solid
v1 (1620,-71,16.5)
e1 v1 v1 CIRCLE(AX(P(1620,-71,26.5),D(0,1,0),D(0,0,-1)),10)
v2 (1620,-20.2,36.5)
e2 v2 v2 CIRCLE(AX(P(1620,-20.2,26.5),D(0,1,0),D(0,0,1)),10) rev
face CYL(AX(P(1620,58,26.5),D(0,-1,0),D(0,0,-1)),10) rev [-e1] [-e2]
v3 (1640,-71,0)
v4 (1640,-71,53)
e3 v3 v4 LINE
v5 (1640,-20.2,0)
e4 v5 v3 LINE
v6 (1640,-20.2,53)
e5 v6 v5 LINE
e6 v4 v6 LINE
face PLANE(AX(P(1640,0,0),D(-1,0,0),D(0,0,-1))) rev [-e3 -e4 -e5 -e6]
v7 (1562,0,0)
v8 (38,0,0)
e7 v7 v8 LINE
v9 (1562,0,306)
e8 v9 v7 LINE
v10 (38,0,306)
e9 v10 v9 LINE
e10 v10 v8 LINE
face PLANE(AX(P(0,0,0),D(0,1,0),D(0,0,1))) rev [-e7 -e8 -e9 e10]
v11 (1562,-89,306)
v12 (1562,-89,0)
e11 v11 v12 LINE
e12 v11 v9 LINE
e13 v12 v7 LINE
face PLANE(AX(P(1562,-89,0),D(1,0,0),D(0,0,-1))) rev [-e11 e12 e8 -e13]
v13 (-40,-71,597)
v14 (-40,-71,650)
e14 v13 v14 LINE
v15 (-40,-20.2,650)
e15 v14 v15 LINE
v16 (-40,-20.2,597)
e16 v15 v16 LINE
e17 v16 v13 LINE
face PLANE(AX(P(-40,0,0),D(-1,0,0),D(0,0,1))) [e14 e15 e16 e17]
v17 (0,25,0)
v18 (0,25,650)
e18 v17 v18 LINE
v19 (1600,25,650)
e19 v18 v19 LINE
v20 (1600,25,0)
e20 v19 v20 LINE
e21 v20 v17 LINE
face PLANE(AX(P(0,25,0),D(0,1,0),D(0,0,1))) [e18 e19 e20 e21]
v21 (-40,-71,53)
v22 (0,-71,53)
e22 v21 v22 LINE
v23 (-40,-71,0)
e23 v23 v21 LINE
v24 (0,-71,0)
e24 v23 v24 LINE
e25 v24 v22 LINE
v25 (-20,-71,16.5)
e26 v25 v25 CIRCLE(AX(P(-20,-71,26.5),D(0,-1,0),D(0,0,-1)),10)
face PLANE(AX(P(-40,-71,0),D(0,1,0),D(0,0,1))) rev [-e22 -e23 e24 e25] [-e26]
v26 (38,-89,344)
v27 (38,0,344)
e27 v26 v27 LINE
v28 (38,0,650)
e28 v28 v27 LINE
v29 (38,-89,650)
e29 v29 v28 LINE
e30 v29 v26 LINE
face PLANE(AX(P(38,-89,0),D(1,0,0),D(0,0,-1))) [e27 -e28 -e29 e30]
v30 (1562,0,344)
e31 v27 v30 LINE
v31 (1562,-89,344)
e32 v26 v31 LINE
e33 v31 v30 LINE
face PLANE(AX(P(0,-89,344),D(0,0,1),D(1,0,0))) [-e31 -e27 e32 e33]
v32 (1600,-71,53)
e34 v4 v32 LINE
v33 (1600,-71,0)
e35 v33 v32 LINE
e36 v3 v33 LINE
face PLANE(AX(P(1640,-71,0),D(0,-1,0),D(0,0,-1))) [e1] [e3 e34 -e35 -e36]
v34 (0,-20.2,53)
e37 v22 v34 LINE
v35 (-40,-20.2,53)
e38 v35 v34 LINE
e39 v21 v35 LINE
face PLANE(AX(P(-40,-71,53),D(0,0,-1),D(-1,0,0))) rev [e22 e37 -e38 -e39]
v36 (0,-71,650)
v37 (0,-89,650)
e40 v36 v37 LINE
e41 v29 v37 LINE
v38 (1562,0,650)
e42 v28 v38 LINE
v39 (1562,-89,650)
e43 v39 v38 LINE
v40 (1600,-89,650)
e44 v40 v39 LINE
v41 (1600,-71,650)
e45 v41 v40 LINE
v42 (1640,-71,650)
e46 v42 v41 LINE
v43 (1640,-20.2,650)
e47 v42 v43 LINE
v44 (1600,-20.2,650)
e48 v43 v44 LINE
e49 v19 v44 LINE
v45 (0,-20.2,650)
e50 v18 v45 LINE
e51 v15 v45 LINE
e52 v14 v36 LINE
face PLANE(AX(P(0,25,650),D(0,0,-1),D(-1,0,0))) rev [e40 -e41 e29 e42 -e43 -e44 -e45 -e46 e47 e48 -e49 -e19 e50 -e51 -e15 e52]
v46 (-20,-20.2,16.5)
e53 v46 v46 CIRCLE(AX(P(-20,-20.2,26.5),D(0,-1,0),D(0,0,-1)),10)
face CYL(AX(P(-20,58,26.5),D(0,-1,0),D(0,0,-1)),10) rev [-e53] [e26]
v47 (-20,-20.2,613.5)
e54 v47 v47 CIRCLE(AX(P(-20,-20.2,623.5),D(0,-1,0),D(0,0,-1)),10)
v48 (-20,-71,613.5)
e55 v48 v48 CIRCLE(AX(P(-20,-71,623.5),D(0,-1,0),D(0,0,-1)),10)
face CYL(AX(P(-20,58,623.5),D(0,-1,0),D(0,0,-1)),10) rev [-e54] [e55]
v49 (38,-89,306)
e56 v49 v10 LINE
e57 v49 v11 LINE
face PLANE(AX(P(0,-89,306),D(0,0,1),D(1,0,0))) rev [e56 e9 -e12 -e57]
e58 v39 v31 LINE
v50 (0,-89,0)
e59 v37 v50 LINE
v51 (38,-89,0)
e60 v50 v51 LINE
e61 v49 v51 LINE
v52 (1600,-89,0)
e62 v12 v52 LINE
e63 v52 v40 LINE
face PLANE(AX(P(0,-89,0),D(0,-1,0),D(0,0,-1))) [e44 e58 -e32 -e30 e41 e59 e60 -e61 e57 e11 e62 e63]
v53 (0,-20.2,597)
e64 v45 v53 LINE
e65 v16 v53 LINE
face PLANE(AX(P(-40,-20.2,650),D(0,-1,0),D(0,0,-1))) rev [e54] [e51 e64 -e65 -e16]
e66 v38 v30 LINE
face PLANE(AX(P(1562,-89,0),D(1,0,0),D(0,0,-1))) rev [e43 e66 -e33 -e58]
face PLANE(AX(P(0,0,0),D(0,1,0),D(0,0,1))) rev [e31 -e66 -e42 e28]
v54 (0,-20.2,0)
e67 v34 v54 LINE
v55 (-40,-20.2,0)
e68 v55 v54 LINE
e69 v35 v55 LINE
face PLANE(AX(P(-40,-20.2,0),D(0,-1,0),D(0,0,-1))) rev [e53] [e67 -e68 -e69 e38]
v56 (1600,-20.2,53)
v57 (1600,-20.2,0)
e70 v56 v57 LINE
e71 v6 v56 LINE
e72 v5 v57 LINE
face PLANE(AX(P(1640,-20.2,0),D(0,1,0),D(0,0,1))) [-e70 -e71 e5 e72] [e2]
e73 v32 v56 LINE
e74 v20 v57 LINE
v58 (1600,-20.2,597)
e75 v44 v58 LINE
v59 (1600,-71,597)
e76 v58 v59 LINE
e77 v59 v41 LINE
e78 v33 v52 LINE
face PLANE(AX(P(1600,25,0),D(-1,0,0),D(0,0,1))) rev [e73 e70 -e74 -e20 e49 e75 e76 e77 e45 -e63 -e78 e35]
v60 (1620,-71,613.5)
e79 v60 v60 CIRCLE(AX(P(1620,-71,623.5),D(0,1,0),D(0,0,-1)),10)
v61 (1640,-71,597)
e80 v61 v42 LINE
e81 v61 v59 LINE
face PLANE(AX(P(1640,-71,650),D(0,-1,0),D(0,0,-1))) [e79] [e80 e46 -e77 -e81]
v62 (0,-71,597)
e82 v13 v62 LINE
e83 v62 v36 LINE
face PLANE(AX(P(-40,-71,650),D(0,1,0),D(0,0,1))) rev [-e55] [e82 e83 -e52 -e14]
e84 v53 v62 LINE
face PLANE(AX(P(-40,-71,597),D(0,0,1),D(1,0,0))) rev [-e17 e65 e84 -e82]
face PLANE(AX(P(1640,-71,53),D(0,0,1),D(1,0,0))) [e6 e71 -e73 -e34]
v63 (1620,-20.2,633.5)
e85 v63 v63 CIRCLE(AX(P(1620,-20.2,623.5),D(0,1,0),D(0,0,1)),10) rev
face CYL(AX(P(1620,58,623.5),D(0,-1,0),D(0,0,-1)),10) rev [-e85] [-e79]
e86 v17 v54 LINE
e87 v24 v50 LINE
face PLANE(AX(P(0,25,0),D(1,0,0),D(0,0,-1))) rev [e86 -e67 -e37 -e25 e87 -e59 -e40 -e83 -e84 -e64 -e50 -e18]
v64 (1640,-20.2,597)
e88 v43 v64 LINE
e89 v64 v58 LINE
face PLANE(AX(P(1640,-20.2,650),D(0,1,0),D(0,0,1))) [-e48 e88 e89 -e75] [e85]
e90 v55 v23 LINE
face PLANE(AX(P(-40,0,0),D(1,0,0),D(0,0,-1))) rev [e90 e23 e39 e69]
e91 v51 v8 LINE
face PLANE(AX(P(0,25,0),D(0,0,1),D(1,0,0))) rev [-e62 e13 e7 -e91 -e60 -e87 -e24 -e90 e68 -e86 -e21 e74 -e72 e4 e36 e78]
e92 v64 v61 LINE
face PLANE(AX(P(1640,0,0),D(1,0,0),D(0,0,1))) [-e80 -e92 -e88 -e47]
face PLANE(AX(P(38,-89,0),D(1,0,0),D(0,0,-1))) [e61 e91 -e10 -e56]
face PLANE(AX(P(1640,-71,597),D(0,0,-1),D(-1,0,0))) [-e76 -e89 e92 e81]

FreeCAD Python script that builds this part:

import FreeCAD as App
import Part
import Sketcher

doc = App.newDocument("Part")
params = doc.addObject("Spreadsheet::Sheet", "Params")
for row, (alias, value) in enumerate([
    ("sketch1_width", "1600 mm"),
    ("sketch1_height", "650 mm"),
    ("pad1_length", "25 mm"),
    ("sketch2_width", "1524 mm"),
    ("sketch2_width2", "38 mm"),
    ("sketch2_height", "306 mm"),
    ("sketch2_height2", "650 mm"),
    ("pad2_length", "89 mm"),
    ("sketch3_height", "53 mm"),
    ("sketch3_width", "50.8 mm"),
    ("pad3_length", "40 mm"),
    ("sketch4_diameter", "20 mm"),
    ("pocket1_length", "129 mm"),
], start=1):
    params.set(f"A{row}", alias)
    params.set(f"B{row}", "=" + value)
    params.setAlias(f"B{row}", alias)

body = doc.addObject("PartDesign::Body", "Body")

# Sketch on XZ plane
sketch1 = doc.addObject("Sketcher::SketchObject", "Sketch")
body.addObject(sketch1)
sketch1.AttachmentSupport = (doc.XZ_Plane, [""])
sketch1.MapMode = "FlatFace"
sketch1.addGeometry([
    Part.LineSegment(App.Vector(0, 0, 0), App.Vector(0, 650, 0)),
    Part.LineSegment(App.Vector(0, 650, 0), App.Vector(1600, 650, 0)),
    Part.LineSegment(App.Vector(1600, 650, 0), App.Vector(1600, 0, 0)),
    Part.LineSegment(App.Vector(1600, 0, 0), App.Vector(0, 0, 0)),
], False)
sketch1.addConstraint([
    Sketcher.Constraint("Coincident", 0, 2, 1, 1),
    Sketcher.Constraint("Coincident", 1, 2, 2, 1),
    Sketcher.Constraint("Coincident", 2, 2, 3, 1),
    Sketcher.Constraint("Coincident", 3, 2, 0, 1),
    Sketcher.Constraint("Vertical", 0),
    Sketcher.Constraint("Horizontal", 1),
    Sketcher.Constraint("Vertical", 2),
    Sketcher.Constraint("Horizontal", 3),
    Sketcher.Constraint("Coincident", 3, 2, -1, 1),
    Sketcher.Constraint("DistanceX", 1, 1, 1, 2, 1600.0),
    Sketcher.Constraint("DistanceY", 0, 1, 0, 2, 650.0),
])
sketch1.setExpression("Constraints[9]", "Params.sketch1_width")
sketch1.setExpression("Constraints[10]", "Params.sketch1_height")
pad1 = doc.addObject("PartDesign::Pad", "Pad")
body.addObject(pad1)
pad1.Profile = sketch1
pad1.setExpression("Length", "Params.pad1_length")
pad1.Reversed = True

# Sketch on XZ plane
sketch2 = doc.addObject("Sketcher::SketchObject", "Sketch001")
body.addObject(sketch2)
sketch2.AttachmentSupport = (doc.XZ_Plane, [""])
sketch2.MapMode = "FlatFace"
sketch2.addGeometry([
    Part.LineSegment(App.Vector(38, 0, 0), App.Vector(38, 306, 0)),  # 0
    Part.LineSegment(App.Vector(38, 306, 0), App.Vector(1562, 306, 0)),  # 1
    Part.LineSegment(App.Vector(1562, 306, 0), App.Vector(1562, 0, 0)),  # 2
    Part.LineSegment(App.Vector(1562, 0, 0), App.Vector(1600, 0, 0)),  # 3
    Part.LineSegment(App.Vector(1600, 0, 0), App.Vector(1600, 650, 0)),  # 4
    Part.LineSegment(App.Vector(1600, 650, 0), App.Vector(1562, 650, 0)),  # 5
    Part.LineSegment(App.Vector(1562, 650, 0), App.Vector(1562, 344, 0)),  # 6
    Part.LineSegment(App.Vector(1562, 344, 0), App.Vector(38, 344, 0)),  # 7
    Part.LineSegment(App.Vector(38, 344, 0), App.Vector(38, 650, 0)),  # 8
    Part.LineSegment(App.Vector(38, 650, 0), App.Vector(0, 650, 0)),  # 9
    Part.LineSegment(App.Vector(0, 650, 0), App.Vector(0, 0, 0)),  # 10
    Part.LineSegment(App.Vector(0, 0, 0), App.Vector(38, 0, 0)),  # 11
], False)
sketch2.addConstraint([
    Sketcher.Constraint("Coincident", 0, 2, 1, 1),
    Sketcher.Constraint("Coincident", 1, 2, 2, 1),
    Sketcher.Constraint("Coincident", 2, 2, 3, 1),
    Sketcher.Constraint("Coincident", 3, 2, 4, 1),
    Sketcher.Constraint("Coincident", 4, 2, 5, 1),
    Sketcher.Constraint("Coincident", 5, 2, 6, 1),
    Sketcher.Constraint("Coincident", 6, 2, 7, 1),
    Sketcher.Constraint("Coincident", 7, 2, 8, 1),
    Sketcher.Constraint("Coincident", 8, 2, 9, 1),
    Sketcher.Constraint("Coincident", 9, 2, 10, 1),
    Sketcher.Constraint("Coincident", 10, 2, 11, 1),
    Sketcher.Constraint("Coincident", 11, 2, 0, 1),
    Sketcher.Constraint("Vertical", 0),
    Sketcher.Constraint("Horizontal", 1),
    Sketcher.Constraint("Vertical", 2),
    Sketcher.Constraint("Horizontal", 3),
    Sketcher.Constraint("Vertical", 4),
    Sketcher.Constraint("Horizontal", 5),
    Sketcher.Constraint("Vertical", 6),
    Sketcher.Constraint("Horizontal", 7),
    Sketcher.Constraint("Vertical", 8),
    Sketcher.Constraint("Horizontal", 9),
    Sketcher.Constraint("Vertical", 10),
    Sketcher.Constraint("Horizontal", 11),
    Sketcher.Constraint("Coincident", 10, 2, -1, 1),
    Sketcher.Constraint("PointOnObject", 2, 2, -1),
    Sketcher.Constraint("Horizontal", 5, 2, 8, 2),
    Sketcher.Constraint("Vertical", 2, 2, 5, 2),
    Sketcher.Constraint("Vertical", 0, 2, 7, 2),
    Sketcher.Constraint("Equal", 5, 9),
    Sketcher.Constraint("Equal", 2, 6),
    Sketcher.Constraint("DistanceX", 1, 1, 1, 2, 1524.0),
    Sketcher.Constraint("DistanceX", 3, 1, 3, 2, 38.0),
    Sketcher.Constraint("DistanceY", 0, 1, 0, 2, 306.0),
    Sketcher.Constraint("DistanceY", 4, 1, 4, 2, 650.0),
])
sketch2.setExpression("Constraints[31]", "Params.sketch2_width")
sketch2.setExpression("Constraints[32]", "Params.sketch2_width2")
sketch2.setExpression("Constraints[33]", "Params.sketch2_height")
sketch2.setExpression("Constraints[34]", "Params.sketch2_height2")
pad2 = doc.addObject("PartDesign::Pad", "Pad001")
body.addObject(pad2)
pad2.Profile = sketch2
pad2.setExpression("Length", "Params.pad2_length")

# Sketch on YZ plane
sketch3 = doc.addObject("Sketcher::SketchObject", "Sketch002")
body.addObject(sketch3)
sketch3.AttachmentSupport = (doc.YZ_Plane, [""])
sketch3.MapMode = "FlatFace"
sketch3.addGeometry([
    Part.LineSegment(App.Vector(-20, 0, 0), App.Vector(-71, 0, 0)),  # 0
    Part.LineSegment(App.Vector(-71, 0, 0), App.Vector(-71, 53, 0)),  # 1
    Part.LineSegment(App.Vector(-71, 53, 0), App.Vector(-20, 53, 0)),  # 2
    Part.LineSegment(App.Vector(-20, 53, 0), App.Vector(-20, 0, 0)),  # 3
    Part.LineSegment(App.Vector(-20, 597, 0), App.Vector(-71, 597, 0)),  # 4
    Part.LineSegment(App.Vector(-71, 597, 0), App.Vector(-71, 650, 0)),  # 5
    Part.LineSegment(App.Vector(-71, 650, 0), App.Vector(-20, 650, 0)),  # 6
    Part.LineSegment(App.Vector(-20, 650, 0), App.Vector(-20, 597, 0)),  # 7
], False)
sketch3.addConstraint([
    Sketcher.Constraint("Coincident", 0, 2, 1, 1),
    Sketcher.Constraint("Coincident", 1, 2, 2, 1),
    Sketcher.Constraint("Coincident", 2, 2, 3, 1),
    Sketcher.Constraint("Coincident", 3, 2, 0, 1),
    Sketcher.Constraint("Coincident", 4, 2, 5, 1),
    Sketcher.Constraint("Coincident", 5, 2, 6, 1),
    Sketcher.Constraint("Coincident", 6, 2, 7, 1),
    Sketcher.Constraint("Coincident", 7, 2, 4, 1),
    Sketcher.Constraint("Horizontal", 0),
    Sketcher.Constraint("Vertical", 1),
    Sketcher.Constraint("Horizontal", 2),
    Sketcher.Constraint("Vertical", 3),
    Sketcher.Constraint("Horizontal", 4),
    Sketcher.Constraint("Vertical", 5),
    Sketcher.Constraint("Horizontal", 6),
    Sketcher.Constraint("Vertical", 7),
    Sketcher.Constraint("PointOnObject", 0, 2, -1),
    Sketcher.Constraint("Vertical", 1, 2, 4, 2),
    Sketcher.Constraint("Vertical", 3, 2, 6, 2),
    Sketcher.Constraint("Equal", 3, 5),
    Sketcher.Constraint("DistanceY", 1, 1, 1, 2, 53.0),
    Sketcher.Constraint("DistanceX", 0, 2, 0, 1, 50.8),
    Sketcher.Constraint("DistanceX", 0, 2, -1, 1, 71.0),
    Sketcher.Constraint("DistanceY", -1, 1, 4, 2, 597.0),
])
sketch3.setExpression("Constraints[20]", "Params.sketch3_height")
sketch3.setExpression("Constraints[21]", "Params.sketch3_width")
pad3 = doc.addObject("PartDesign::Pad", "Pad002")
body.addObject(pad3)
pad3.Profile = sketch3
pad3.setExpression("Length", "Params.pad3_length")
pad3.Reversed = True

# Sketch on XZ plane
sketch4 = doc.addObject("Sketcher::SketchObject", "Sketch003")
body.addObject(sketch4)
sketch4.AttachmentSupport = (doc.XZ_Plane, [""])
sketch4.MapMode = "FlatFace"
sketch4.AttachmentOffset = App.Placement(App.Vector(0, 0, 71), App.Rotation())
sketch4.addGeometry([
    Part.Circle(App.Vector(-20, 26, 0), App.Vector(0, 0, 1), 10),
    Part.Circle(App.Vector(-20, 624, 0), App.Vector(0, 0, 1), 10),
], False)
sketch4.addConstraint([
    Sketcher.Constraint("Equal", 0, 1),
    Sketcher.Constraint("Vertical", 0, 3, 1, 3),
    Sketcher.Constraint("Diameter", 0, 20.0),
    Sketcher.Constraint("DistanceX", 0, 3, -1, 1, 20.0),
    Sketcher.Constraint("DistanceY", 0, 3, 1, 3, 597.0),
    Sketcher.Constraint("DistanceY", -1, 1, 0, 3, 26.5),
])
sketch4.setExpression("Constraints[2]", "Params.sketch4_diameter")
pocket1 = doc.addObject("PartDesign::Pocket", "Pocket")
body.addObject(pocket1)
pocket1.Profile = sketch4
pocket1.setExpression("Length", "Params.pocket1_length")
doc.recompute()

datumplane = doc.addObject("PartDesign::Plane", "DatumPlane")
body.addObject(datumplane)
datumplane.AttachmentSupport = (doc.YZ_Plane, [""])
datumplane.MapMode = "FlatFace"
datumplane.AttachmentOffset = App.Placement(App.Vector(0, 0, 800), App.Rotation())
mirrored = doc.addObject("PartDesign::Mirrored", "Mirrored")
body.addObject(mirrored)
mirrored.Originals = [pad3, pocket1]
mirrored.MirrorPlane = (datumplane, [""])
body.Tip = mirrored

doc.recompute()
